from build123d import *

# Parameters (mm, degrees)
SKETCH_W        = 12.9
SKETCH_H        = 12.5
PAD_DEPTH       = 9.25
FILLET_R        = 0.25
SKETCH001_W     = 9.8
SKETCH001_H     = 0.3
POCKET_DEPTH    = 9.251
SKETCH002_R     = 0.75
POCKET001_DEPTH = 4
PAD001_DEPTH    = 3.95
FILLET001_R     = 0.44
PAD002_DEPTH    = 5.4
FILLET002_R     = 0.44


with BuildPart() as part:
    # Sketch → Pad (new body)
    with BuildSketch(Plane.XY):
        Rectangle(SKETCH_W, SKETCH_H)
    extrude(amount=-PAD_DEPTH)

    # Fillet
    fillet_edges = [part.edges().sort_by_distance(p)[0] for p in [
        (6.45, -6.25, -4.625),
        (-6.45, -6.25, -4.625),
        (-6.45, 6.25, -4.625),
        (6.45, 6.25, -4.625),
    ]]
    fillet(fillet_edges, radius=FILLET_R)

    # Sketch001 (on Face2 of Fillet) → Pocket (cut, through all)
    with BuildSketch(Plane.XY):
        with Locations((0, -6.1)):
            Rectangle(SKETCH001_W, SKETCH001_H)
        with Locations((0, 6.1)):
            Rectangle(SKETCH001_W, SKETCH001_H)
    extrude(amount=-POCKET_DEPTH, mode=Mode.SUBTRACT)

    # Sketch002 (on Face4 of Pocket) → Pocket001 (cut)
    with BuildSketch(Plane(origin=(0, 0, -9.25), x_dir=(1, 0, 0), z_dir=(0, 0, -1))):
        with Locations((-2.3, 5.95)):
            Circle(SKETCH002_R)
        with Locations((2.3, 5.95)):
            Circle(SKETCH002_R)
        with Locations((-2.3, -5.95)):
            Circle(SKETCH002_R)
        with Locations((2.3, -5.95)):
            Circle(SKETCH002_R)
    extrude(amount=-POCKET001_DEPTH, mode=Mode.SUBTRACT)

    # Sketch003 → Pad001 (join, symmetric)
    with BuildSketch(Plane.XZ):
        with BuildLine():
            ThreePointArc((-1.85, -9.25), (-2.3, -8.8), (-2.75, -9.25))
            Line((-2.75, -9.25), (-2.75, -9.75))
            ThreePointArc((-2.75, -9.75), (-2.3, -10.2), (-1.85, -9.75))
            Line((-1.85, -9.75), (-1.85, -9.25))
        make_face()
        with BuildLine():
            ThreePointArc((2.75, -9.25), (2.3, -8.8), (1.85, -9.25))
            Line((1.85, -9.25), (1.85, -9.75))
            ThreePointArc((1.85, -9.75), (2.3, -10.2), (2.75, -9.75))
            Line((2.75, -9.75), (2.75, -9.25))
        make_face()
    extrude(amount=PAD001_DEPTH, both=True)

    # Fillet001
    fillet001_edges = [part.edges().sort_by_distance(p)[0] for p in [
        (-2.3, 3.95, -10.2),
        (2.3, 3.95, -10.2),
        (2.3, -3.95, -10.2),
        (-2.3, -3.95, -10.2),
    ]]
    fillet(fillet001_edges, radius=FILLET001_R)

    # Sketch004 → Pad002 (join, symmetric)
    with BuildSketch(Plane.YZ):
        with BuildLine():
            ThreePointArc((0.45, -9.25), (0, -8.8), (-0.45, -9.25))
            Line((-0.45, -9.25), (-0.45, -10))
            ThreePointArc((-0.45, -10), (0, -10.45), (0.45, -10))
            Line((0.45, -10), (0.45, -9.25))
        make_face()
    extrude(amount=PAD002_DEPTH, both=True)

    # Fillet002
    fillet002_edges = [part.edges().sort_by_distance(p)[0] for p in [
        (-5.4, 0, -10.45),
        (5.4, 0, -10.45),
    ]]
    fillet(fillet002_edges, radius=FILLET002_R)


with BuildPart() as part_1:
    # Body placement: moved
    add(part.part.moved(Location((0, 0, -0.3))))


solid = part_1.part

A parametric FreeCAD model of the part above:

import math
import FreeCAD as App
import Part
import Sketcher

V = App.Vector
Q = App.Units.Quantity


def edges_at(feature, points):
    """Names of the edges that pass closest to the given points."""
    edges = feature.Shape.Edges
    near = lambda p: min(range(len(edges)), key=lambda i: edges[i].distToShape(Part.Vertex(*p))[0])
    return sorted({f"Edge{near(p) + 1}" for p in points})


def add_polygon(sketch, points):
    """Adds a closed chain of lines whose ends are joined by coincident constraints."""
    first, n = sketch.GeometryCount, len(points)
    for a, b in zip(points, points[1:] + points[:1]):
        sketch.addGeometry(Part.LineSegment(App.Vector(*a, 0), App.Vector(*b, 0)), False)
    for i in range(n):
        sketch.addConstraint(Sketcher.Constraint("Coincident", first + i, 2, first + (i + 1) % n, 1))

doc = App.newDocument("Part")
params = doc.addObject("Spreadsheet::Sheet", "Params")
for row, (alias, value) in enumerate([
    ("sketch1_width", "12.9 mm"),
    ("sketch1_height", "12.5 mm"),
    ("pad1_length", "9.25 mm"),
    ("fillet_radius", "0.25 mm"),
    ("sketch2_width", "9.8 mm"),
    ("sketch2_height", "0.3 mm"),
    ("sketch3_diameter", "1.5 mm"),
    ("pocket2_length", "4 mm"),
    ("sketch4_radius", "0.45 mm"),
    ("sketch4_height", "0.5 mm"),
    ("pad2_length", "7.9 mm"),
    ("fillet2_radius", "0.44 mm"),
    ("sketch5_radius", "0.45 mm"),
    ("sketch5_height", "0.75 mm"),
    ("pad3_length", "10.8 mm"),
    ("fillet3_radius", "0.44 mm"),
], start=1):
    params.set(f"A{row}", alias)
    params.set(f"B{row}", "=" + value)
    params.setAlias(f"B{row}", alias)

body = doc.addObject("PartDesign::Body", "Body")

# Sketch on XY plane
sketch1 = body.newObject("Sketcher::SketchObject", "Sketch")
sketch1.AttachmentSupport = (doc.getObject("XY_Plane"), [""])
sketch1.MapMode = "FlatFace"
add_polygon(sketch1, [(-6.45, 6.25), (-6.45, -6.25), (6.45, -6.25), (6.45, 6.25)])  # lines 0-3
sketch1.addConstraint(Sketcher.Constraint("Vertical", 0))
sketch1.addConstraint(Sketcher.Constraint("Horizontal", 1))
sketch1.addConstraint(Sketcher.Constraint("Vertical", 2))
sketch1.addConstraint(Sketcher.Constraint("Horizontal", 3))
sketch1.addConstraint(Sketcher.Constraint("Symmetric", 0, 2, 2, 2, -1, 1))
sketch1.addConstraint(Sketcher.Constraint("DistanceX", 1, 1, 1, 2, Q("12.9 mm")))
sketch1.addConstraint(Sketcher.Constraint("DistanceY", 0, 2, 0, 1, Q("12.5 mm")))
sketch1.setExpression("Constraints[9]", "Params.sketch1_width")
sketch1.setExpression("Constraints[10]", "Params.sketch1_height")
pad1 = body.newObject("PartDesign::Pad", "Pad")
pad1.Profile = sketch1
pad1.setExpression("Length", "Params.pad1_length")
pad1.Reversed = True
doc.recompute()

fillet = body.newObject("PartDesign::Fillet", "Fillet")
fillet.Base = (pad1, edges_at(pad1, [
    (6.45, -6.25, -4.625),
    (-6.45, -6.25, -4.625),
    (-6.45, 6.25, -4.625),
    (6.45, 6.25, -4.625),
]))
fillet.setExpression("Radius", "Params.fillet_radius")

# Sketch on XY plane
sketch2 = body.newObject("Sketcher::SketchObject", "Sketch001")
sketch2.AttachmentSupport = (doc.getObject("XY_Plane"), [""])
sketch2.MapMode = "FlatFace"
add_polygon(sketch2, [(-4.9, -5.95), (-4.9, -6.25), (4.9, -6.25), (4.9, -5.95)])  # lines 0-3
add_polygon(sketch2, [(-4.9, 6.25), (-4.9, 5.95), (4.9, 5.95), (4.9, 6.25)])  # lines 4-7
sketch2.addConstraint(Sketcher.Constraint("Vertical", 0))
sketch2.addConstraint(Sketcher.Constraint("Horizontal", 1))
sketch2.addConstraint(Sketcher.Constraint("Vertical", 2))
sketch2.addConstraint(Sketcher.Constraint("Horizontal", 3))
sketch2.addConstraint(Sketcher.Constraint("Vertical", 4))
sketch2.addConstraint(Sketcher.Constraint("Horizontal", 5))
sketch2.addConstraint(Sketcher.Constraint("Vertical", 6))
sketch2.addConstraint(Sketcher.Constraint("Horizontal", 7))
sketch2.addConstraint(Sketcher.Constraint("Symmetric", 2, 2, 4, 2, -1, 1))
sketch2.addConstraint(Sketcher.Constraint("Symmetric", 0, 2, 6, 2, -1, 1))
sketch2.addConstraint(Sketcher.Constraint("Vertical", 3, 2, 4, 2))
sketch2.addConstraint(Sketcher.Constraint("DistanceX", 1, 1, 1, 2, Q("9.8 mm")))
sketch2.addConstraint(Sketcher.Constraint("DistanceY", 0, 2, 0, 1, Q("0.3 mm")))
sketch2.addConstraint(Sketcher.Constraint("DistanceY", 3, 2, 4, 2, Q("11.9 mm")))
sketch2.setExpression("Constraints[19]", "Params.sketch2_width")
sketch2.setExpression("Constraints[20]", "Params.sketch2_height")
pocket1 = body.newObject("PartDesign::Pocket", "Pocket")
pocket1.Profile = sketch2
pocket1.Type = "ThroughAll"

# Sketch on XY plane
sketch3 = body.newObject("Sketcher::SketchObject", "Sketch002")
sketch3.AttachmentSupport = (doc.getObject("XY_Plane"), [""])
sketch3.MapMode = "FlatFace"
sketch3.AttachmentOffset = App.Placement(V(0, 0, -9.25), App.Rotation())
sketch3.addGeometry(Part.Circle(V(-2.3, -5.95, 0), V(0, 0, 1), 0.75), False)
sketch3.addGeometry(Part.Circle(V(2.3, -5.95, 0), V(0, 0, 1), 0.75), False)
sketch3.addGeometry(Part.Circle(V(-2.3, 5.95, 0), V(0, 0, 1), 0.75), False)
sketch3.addGeometry(Part.Circle(V(2.3, 5.95, 0), V(0, 0, 1), 0.75), False)
sketch3.addConstraint(Sketcher.Constraint("Equal", 0, 1))
sketch3.addConstraint(Sketcher.Constraint("Equal", 1, 2))
sketch3.addConstraint(Sketcher.Constraint("Equal", 2, 3))
sketch3.addConstraint(Sketcher.Constraint("Symmetric", 1, 3, 2, 3, -1, 1))
sketch3.addConstraint(Sketcher.Constraint("Symmetric", 0, 3, 3, 3, -1, 1))
sketch3.addConstraint(Sketcher.Constraint("Symmetric", 0, 3, 1, 3, -2))
sketch3.addConstraint(Sketcher.Constraint("Diameter", 0, Q("1.5 mm")))
sketch3.addConstraint(Sketcher.Constraint("DistanceX", 0, 3, -1, 1, Q("2.3 mm")))
sketch3.addConstraint(Sketcher.Constraint("DistanceY", 0, 3, 2, 3, Q("11.9 mm")))
sketch3.setExpression("Constraints[6]", "Params.sketch3_diameter")
pocket2 = body.newObject("PartDesign::Pocket", "Pocket001")
pocket2.Profile = sketch3
pocket2.setExpression("Length", "Params.pocket2_length")
pocket2.Reversed = True

# Sketch on XZ plane
sketch4 = body.newObject("Sketcher::SketchObject", "Sketch003")
sketch4.AttachmentSupport = (doc.getObject("XZ_Plane"), [""])
sketch4.MapMode = "FlatFace"
sketch4.addGeometry(Part.ArcOfCircle(Part.Circle(V(-2.3, -9.25, 0), V(0, 0, 1), 0.45), math.radians(0), math.radians(180)), False)
sketch4.addGeometry(Part.LineSegment(V(-2.75, -9.25, 0), V(-2.75, -9.75, 0)), False)
sketch4.addGeometry(Part.ArcOfCircle(Part.Circle(V(-2.3, -9.75, 0), V(0, 0, 1), 0.45), math.radians(180), math.radians(360)), False)
sketch4.addGeometry(Part.LineSegment(V(-1.85, -9.75, 0), V(-1.85, -9.25, 0)), False)
sketch4.addGeometry(Part.ArcOfCircle(Part.Circle(V(2.3, -9.25, 0), V(0, 0, 1), 0.45), math.radians(0), math.radians(180)), False)
sketch4.addGeometry(Part.LineSegment(V(1.85, -9.25, 0), V(1.85, -9.75, 0)), False)
sketch4.addGeometry(Part.ArcOfCircle(Part.Circle(V(2.3, -9.75, 0), V(0, 0, 1), 0.45), math.radians(180), math.radians(360)), False)
sketch4.addGeometry(Part.LineSegment(V(2.75, -9.75, 0), V(2.75, -9.25, 0)), False)
sketch4.addConstraint(Sketcher.Constraint("Tangent", 0, 2, 1, 1))
sketch4.addConstraint(Sketcher.Constraint("Tangent", 1, 2, 2, 1))
sketch4.addConstraint(Sketcher.Constraint("Tangent", 2, 2, 3, 1))
sketch4.addConstraint(Sketcher.Constraint("Tangent", 3, 2, 0, 1))
sketch4.addConstraint(Sketcher.Constraint("Tangent", 4, 2, 5, 1))
sketch4.addConstraint(Sketcher.Constraint("Tangent", 5, 2, 6, 1))
sketch4.addConstraint(Sketcher.Constraint("Tangent", 6, 2, 7, 1))
sketch4.addConstraint(Sketcher.Constraint("Tangent", 7, 2, 4, 1))
sketch4.addConstraint(Sketcher.Constraint("Vertical", 1))
sketch4.addConstraint(Sketcher.Constraint("Vertical", 3))
sketch4.addConstraint(Sketcher.Constraint("Vertical", 5))
sketch4.addConstraint(Sketcher.Constraint("Vertical", 7))
sketch4.addConstraint(Sketcher.Constraint("Equal", 2, 4))
sketch4.addConstraint(Sketcher.Constraint("Symmetric", 0, 3, 4, 3, -2))
sketch4.addConstraint(Sketcher.Constraint("Horizontal", 2, 3, 6, 3))
sketch4.addConstraint(Sketcher.Constraint("Radius", 0, Q("0.45 mm")))
sketch4.addConstraint(Sketcher.Constraint("DistanceY", 1, 2, 1, 1, Q("0.5 mm")))
sketch4.addConstraint(Sketcher.Constraint("DistanceX", 0, 3, -1, 1, Q("2.3 mm")))
sketch4.addConstraint(Sketcher.Constraint("DistanceY", 0, 3, -1, 1, Q("9.25 mm")))
sketch4.setExpression("Constraints[15]", "Params.sketch4_radius")
sketch4.setExpression("Constraints[16]", "Params.sketch4_height")
pad2 = body.newObject("PartDesign::Pad", "Pad001")
pad2.Profile = sketch4
pad2.setExpression("Length", "Params.pad2_length")
pad2.Midplane = True
doc.recompute()

fillet2 = body.newObject("PartDesign::Fillet", "Fillet001")
fillet2.Base = (pad2, edges_at(pad2, [
    (-2.3, 3.95, -10.2),
    (2.3, 3.95, -10.2),
    (2.3, -3.95, -10.2),
    (-2.3, -3.95, -10.2),
]))
fillet2.setExpression("Radius", "Params.fillet2_radius")

# Sketch on YZ plane
sketch5 = body.newObject("Sketcher::SketchObject", "Sketch004")
sketch5.AttachmentSupport = (doc.getObject("YZ_Plane"), [""])
sketch5.MapMode = "FlatFace"
sketch5.addGeometry(Part.ArcOfCircle(Part.Circle(V(0, -9.25, 0), V(0, 0, 1), 0.45), math.radians(0), math.radians(180)), False)
sketch5.addGeometry(Part.LineSegment(V(-0.45, -9.25, 0), V(-0.45, -10, 0)), False)
sketch5.addGeometry(Part.ArcOfCircle(Part.Circle(V(0, -10, 0), V(0, 0, 1), 0.45), math.radians(180), math.radians(360)), False)
sketch5.addGeometry(Part.LineSegment(V(0.45, -10, 0), V(0.45, -9.25, 0)), False)
sketch5.addConstraint(Sketcher.Constraint("Tangent", 0, 2, 1, 1))
sketch5.addConstraint(Sketcher.Constraint("Tangent", 1, 2, 2, 1))
sketch5.addConstraint(Sketcher.Constraint("Tangent", 2, 2, 3, 1))
sketch5.addConstraint(Sketcher.Constraint("Tangent", 3, 2, 0, 1))
sketch5.addConstraint(Sketcher.Constraint("Vertical", 1))
sketch5.addConstraint(Sketcher.Constraint("Vertical", 3))
sketch5.addConstraint(Sketcher.Constraint("PointOnObject", 0, 3, -2))
sketch5.addConstraint(Sketcher.Constraint("Radius", 0, Q("0.45 mm")))
sketch5.addConstraint(Sketcher.Constraint("DistanceY", 2, 3, -1, 1, Q("10 mm")))
sketch5.addConstraint(Sketcher.Constraint("DistanceY", 1, 2, 1, 1, Q("0.75 mm")))
sketch5.setExpression("Constraints[7]", "Params.sketch5_radius")
sketch5.setExpression("Constraints[9]", "Params.sketch5_height")
pad3 = body.newObject("PartDesign::Pad", "Pad002")
pad3.Profile = sketch5
pad3.setExpression("Length", "Params.pad3_length")
pad3.Midplane = True
doc.recompute()

fillet3 = body.newObject("PartDesign::Fillet", "Fillet002")
fillet3.Base = (pad3, edges_at(pad3, [(-5.4, 0, -10.45), (5.4, 0, -10.45)]))
fillet3.setExpression("Radius", "Params.fillet3_radius")
body2 = doc.addObject("PartDesign::Body", "Body001")
doc.recompute()

body.Placement = App.Placement(V(0, 0, -0.3), App.Rotation(V(0, 0, 1), 0))
boolean = body2.newObject("PartDesign::Boolean", "Boolean")
boolean.Type = "Fuse"
boolean.addObjects([body])

doc.recompute()
